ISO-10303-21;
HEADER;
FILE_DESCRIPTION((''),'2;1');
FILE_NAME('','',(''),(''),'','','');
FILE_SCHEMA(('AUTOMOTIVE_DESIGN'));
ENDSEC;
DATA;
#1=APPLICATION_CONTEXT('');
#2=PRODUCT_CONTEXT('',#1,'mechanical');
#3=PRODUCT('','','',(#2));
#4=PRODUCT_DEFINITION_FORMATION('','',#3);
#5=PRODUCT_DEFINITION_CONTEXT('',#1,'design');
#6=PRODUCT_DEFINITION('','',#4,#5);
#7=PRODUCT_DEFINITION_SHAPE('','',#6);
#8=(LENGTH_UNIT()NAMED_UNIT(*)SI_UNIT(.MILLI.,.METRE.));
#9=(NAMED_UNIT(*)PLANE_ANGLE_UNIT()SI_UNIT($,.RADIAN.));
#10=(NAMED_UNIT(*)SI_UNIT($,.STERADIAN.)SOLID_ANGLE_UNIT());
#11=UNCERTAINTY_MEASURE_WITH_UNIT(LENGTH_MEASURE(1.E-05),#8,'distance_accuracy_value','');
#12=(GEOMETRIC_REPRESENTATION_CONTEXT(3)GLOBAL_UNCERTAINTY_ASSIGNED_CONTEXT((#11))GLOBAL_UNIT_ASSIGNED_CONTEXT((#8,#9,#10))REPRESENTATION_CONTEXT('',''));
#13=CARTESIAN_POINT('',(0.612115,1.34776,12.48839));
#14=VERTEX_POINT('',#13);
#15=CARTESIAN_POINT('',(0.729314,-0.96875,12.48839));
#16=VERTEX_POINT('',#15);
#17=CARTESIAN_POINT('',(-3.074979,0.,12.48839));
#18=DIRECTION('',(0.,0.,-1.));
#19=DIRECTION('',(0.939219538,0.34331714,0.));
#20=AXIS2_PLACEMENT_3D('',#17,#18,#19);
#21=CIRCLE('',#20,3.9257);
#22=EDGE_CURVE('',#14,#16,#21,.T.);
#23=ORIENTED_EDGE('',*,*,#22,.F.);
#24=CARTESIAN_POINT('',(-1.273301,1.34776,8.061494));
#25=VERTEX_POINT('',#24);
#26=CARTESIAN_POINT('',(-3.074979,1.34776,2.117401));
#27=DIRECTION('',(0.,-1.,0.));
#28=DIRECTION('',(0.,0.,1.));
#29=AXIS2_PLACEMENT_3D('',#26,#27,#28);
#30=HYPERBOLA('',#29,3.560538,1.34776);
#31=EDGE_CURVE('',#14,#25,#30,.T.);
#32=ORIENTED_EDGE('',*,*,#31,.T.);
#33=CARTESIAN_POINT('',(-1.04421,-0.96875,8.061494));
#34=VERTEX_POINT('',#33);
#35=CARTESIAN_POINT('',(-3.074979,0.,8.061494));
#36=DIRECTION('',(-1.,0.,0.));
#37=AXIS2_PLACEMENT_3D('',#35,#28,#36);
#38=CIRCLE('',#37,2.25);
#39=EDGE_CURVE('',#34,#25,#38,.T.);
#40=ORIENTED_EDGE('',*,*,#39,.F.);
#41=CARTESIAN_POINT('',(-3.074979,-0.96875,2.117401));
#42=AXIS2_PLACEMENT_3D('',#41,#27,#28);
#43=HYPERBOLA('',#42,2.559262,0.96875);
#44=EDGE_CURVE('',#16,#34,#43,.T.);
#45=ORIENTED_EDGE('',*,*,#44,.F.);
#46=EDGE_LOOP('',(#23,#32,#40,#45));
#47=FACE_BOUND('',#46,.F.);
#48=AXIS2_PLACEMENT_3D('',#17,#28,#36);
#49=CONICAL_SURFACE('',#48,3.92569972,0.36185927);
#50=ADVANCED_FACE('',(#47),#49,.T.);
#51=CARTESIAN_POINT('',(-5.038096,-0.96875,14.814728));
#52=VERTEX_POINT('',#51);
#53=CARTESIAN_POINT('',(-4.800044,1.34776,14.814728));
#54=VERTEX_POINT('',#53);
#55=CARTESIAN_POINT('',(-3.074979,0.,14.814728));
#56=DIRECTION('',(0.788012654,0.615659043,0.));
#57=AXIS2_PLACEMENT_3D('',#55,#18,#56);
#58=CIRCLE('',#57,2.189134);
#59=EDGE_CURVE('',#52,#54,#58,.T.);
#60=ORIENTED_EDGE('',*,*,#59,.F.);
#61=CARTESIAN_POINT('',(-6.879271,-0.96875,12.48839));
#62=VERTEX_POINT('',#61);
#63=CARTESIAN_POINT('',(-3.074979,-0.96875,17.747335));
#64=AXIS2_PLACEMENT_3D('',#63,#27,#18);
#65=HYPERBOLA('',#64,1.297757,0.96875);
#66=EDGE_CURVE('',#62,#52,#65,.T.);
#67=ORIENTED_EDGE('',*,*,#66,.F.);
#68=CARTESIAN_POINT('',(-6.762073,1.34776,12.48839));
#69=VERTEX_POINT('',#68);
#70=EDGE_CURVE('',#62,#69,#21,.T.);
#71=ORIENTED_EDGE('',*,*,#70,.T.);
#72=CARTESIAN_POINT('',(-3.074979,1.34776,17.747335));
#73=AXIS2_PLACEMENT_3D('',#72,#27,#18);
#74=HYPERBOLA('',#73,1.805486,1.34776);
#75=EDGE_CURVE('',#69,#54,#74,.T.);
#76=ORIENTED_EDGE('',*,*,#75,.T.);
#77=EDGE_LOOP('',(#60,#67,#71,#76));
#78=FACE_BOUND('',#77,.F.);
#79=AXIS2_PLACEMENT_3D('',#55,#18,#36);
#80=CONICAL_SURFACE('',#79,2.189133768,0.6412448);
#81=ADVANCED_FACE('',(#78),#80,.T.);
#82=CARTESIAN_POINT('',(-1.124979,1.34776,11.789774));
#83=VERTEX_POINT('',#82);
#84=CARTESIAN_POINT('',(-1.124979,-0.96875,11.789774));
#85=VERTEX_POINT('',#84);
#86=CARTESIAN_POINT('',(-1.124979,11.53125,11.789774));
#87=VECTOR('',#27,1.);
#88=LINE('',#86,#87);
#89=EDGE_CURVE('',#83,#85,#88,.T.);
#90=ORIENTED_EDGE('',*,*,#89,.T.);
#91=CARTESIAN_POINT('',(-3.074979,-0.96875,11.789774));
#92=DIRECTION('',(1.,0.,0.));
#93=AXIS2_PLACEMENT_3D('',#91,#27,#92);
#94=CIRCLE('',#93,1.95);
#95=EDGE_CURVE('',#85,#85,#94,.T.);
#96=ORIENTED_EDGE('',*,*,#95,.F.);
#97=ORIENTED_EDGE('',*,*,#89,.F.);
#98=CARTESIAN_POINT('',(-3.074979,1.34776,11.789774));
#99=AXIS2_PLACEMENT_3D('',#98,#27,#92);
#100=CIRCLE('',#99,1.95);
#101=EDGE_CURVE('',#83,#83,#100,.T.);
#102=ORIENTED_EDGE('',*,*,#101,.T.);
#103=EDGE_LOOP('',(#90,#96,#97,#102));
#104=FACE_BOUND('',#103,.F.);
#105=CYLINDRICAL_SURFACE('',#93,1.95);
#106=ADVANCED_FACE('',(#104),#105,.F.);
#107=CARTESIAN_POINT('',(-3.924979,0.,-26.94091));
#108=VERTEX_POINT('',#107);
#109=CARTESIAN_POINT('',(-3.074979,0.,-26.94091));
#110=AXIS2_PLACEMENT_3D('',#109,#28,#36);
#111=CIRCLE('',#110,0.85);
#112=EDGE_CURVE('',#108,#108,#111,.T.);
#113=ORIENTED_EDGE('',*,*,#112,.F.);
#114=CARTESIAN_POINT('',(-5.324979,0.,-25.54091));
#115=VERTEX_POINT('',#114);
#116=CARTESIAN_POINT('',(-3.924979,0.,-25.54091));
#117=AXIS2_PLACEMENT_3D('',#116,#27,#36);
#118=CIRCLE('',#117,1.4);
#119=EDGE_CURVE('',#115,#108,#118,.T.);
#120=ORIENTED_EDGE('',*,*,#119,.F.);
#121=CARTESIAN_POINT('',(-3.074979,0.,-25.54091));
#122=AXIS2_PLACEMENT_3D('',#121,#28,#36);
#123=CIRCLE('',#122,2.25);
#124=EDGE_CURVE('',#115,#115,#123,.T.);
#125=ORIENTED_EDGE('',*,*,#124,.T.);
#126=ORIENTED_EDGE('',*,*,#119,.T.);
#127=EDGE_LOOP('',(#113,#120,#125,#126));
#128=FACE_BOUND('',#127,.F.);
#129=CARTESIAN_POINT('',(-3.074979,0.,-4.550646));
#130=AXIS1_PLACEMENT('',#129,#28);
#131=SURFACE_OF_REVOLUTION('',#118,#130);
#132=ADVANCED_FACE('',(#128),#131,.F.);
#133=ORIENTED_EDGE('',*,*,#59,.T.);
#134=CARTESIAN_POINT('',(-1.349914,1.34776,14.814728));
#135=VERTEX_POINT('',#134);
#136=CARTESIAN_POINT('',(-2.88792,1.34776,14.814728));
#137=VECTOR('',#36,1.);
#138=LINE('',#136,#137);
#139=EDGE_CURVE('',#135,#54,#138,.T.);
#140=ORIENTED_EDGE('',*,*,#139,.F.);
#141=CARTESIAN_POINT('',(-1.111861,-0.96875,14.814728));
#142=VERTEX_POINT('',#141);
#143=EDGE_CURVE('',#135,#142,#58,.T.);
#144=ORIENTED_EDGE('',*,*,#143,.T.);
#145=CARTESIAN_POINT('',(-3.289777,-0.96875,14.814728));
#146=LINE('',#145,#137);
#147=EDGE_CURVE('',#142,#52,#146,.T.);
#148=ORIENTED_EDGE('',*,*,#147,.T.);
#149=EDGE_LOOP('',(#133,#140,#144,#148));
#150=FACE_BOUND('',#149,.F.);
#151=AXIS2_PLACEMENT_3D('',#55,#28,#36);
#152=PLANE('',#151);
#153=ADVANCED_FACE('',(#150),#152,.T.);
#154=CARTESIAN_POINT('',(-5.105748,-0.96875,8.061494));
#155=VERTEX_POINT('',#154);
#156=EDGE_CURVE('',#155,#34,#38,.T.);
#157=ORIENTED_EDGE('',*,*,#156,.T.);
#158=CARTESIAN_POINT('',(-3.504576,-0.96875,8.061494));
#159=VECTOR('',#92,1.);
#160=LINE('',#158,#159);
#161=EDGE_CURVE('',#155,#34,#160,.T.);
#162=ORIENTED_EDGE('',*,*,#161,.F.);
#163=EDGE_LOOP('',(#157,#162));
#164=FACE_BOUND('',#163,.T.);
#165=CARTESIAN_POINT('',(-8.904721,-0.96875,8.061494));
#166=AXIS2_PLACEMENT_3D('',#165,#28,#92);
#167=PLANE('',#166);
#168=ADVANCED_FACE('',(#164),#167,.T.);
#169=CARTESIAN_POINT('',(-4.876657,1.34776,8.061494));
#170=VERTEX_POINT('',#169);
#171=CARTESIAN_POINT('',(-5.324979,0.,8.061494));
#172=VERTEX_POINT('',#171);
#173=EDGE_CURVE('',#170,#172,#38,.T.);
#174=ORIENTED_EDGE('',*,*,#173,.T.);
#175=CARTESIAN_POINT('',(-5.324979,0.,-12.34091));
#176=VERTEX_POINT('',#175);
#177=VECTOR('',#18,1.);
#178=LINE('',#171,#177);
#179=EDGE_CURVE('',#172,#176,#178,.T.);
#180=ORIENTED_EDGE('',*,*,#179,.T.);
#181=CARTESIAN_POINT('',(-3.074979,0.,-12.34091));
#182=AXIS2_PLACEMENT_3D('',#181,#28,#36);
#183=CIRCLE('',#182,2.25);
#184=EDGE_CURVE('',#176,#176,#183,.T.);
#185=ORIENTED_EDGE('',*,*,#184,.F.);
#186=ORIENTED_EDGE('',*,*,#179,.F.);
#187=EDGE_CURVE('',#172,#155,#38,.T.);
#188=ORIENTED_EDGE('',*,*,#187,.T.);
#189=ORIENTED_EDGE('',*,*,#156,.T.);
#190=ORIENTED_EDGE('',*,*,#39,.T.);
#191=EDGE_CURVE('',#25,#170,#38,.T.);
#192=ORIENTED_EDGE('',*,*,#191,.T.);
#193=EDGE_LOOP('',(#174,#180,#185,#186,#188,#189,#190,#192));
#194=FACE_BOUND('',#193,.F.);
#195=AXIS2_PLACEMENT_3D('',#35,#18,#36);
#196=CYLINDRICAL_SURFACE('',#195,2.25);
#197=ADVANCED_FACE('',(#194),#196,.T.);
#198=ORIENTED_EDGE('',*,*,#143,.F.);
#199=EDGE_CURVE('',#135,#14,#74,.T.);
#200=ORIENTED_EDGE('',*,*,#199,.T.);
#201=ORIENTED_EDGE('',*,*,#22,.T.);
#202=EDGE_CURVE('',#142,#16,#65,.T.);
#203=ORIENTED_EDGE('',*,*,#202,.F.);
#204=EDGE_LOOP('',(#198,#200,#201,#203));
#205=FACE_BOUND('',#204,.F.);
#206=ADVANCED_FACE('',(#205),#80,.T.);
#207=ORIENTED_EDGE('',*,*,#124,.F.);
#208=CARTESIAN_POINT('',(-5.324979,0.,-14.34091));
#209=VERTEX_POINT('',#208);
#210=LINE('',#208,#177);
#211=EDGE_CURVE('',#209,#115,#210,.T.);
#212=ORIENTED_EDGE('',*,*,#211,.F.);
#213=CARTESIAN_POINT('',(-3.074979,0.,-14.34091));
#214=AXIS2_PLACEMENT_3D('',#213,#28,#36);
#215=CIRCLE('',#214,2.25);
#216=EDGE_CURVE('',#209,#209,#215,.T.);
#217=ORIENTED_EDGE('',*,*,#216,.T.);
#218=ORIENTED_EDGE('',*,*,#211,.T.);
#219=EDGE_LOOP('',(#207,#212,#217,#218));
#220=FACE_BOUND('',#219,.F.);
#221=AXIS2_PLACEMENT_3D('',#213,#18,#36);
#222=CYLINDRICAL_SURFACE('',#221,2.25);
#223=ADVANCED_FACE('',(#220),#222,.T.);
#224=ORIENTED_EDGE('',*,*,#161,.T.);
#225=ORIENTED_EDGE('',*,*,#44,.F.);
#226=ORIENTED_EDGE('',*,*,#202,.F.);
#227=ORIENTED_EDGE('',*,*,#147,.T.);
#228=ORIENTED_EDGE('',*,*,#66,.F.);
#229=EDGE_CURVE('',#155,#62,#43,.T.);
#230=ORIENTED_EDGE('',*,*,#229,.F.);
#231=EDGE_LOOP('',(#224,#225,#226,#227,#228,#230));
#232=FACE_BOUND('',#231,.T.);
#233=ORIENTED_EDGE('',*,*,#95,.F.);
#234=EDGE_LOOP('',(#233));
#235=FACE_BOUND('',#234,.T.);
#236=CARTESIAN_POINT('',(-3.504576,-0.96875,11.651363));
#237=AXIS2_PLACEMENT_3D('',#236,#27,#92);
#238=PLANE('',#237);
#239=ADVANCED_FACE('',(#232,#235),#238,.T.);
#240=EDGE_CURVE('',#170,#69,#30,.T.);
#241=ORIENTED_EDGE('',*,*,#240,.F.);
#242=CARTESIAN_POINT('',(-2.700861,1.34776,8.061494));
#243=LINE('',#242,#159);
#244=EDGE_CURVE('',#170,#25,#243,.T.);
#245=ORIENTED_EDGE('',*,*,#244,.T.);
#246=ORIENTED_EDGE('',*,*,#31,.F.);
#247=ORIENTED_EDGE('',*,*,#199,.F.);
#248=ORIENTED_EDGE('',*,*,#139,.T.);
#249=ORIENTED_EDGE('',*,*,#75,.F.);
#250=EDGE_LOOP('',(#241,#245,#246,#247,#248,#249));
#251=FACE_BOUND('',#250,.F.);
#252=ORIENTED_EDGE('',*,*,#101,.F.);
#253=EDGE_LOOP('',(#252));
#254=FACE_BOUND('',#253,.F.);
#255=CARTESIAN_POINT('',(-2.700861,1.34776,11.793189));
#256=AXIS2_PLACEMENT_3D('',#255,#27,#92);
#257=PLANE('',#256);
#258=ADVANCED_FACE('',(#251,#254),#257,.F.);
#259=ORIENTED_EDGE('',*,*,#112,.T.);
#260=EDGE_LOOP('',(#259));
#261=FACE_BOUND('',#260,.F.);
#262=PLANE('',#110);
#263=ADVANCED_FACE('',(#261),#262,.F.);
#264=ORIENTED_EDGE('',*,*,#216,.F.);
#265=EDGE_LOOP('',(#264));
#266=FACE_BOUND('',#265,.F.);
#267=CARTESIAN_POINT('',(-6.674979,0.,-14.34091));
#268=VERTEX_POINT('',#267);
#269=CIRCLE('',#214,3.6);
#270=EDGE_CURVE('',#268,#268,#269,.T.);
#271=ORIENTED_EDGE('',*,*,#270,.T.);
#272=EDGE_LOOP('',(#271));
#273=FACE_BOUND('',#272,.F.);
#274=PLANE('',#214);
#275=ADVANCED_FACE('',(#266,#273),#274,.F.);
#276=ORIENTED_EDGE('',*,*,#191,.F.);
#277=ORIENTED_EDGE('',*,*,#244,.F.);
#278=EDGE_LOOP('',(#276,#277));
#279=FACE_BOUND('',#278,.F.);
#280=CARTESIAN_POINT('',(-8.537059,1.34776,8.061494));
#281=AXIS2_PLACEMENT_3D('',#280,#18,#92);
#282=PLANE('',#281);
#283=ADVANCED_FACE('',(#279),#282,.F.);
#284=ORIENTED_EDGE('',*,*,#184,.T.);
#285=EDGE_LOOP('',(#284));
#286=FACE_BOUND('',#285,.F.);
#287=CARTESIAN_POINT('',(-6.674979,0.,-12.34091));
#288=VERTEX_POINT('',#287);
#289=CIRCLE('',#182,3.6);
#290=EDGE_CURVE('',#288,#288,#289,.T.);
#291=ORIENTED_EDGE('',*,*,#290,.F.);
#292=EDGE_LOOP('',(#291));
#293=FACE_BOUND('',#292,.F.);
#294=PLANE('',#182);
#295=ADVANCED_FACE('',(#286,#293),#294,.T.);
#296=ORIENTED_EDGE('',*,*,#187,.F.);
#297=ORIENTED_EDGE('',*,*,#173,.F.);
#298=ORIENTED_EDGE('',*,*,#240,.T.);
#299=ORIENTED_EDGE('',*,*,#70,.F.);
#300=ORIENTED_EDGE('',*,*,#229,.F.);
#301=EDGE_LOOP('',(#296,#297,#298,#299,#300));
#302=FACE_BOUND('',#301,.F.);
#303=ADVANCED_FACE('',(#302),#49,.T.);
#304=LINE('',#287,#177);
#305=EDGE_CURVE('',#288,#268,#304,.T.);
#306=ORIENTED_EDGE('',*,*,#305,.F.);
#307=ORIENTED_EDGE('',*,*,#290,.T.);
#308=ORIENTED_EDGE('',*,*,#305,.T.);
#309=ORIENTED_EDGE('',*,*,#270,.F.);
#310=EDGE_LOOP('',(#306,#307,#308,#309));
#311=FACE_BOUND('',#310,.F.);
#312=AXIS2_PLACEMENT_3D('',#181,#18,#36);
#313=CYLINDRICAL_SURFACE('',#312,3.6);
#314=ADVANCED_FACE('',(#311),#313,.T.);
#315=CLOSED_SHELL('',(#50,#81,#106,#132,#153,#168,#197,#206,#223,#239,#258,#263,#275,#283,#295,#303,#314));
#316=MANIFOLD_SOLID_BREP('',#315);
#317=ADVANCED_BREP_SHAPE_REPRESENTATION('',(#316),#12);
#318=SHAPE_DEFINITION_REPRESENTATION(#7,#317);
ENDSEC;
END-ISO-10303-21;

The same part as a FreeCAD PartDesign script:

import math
import FreeCAD as App
import Part
import Sketcher
from FreeCAD import Vector
Q = App.Units.Quantity


def add_polygon(sketch, points):
    """Adds a closed chain of lines whose ends are joined by coincident constraints."""
    first, n = sketch.GeometryCount, len(points)
    for a, b in zip(points, points[1:] + points[:1]):
        sketch.addGeometry(Part.LineSegment(App.Vector(*a, 0), App.Vector(*b, 0)), False)
    for i in range(n):
        sketch.addConstraint(Sketcher.Constraint("Coincident", first + i, 2, first + (i + 1) % n, 1))

doc = App.newDocument("Part")
body = doc.addObject("PartDesign::Body", "Body")

# Sketch on XZ plane
sketch1 = doc.addObject("Sketcher::SketchObject", "Sketch")
body.addObject(sketch1)
sketch1.AttachmentSupport = (doc.XZ_Plane, [""])
sketch1.MapMode = "FlatFace"
sketch1.addGeometry([
    Part.LineSegment(Vector(-7, 12.5, 0), Vector(-5.3, 8.1, 0)),  # 0
    Part.LineSegment(Vector(-5.3, 8.1, 0), Vector(-5.3, -12.3, 0)),  # 1
    Part.LineSegment(Vector(-5.3, -12.3, 0), Vector(-6.7, -12.3, 0)),  # 2
    Part.LineSegment(Vector(-6.7, -12.3, 0), Vector(-6.7, -14.3, 0)),  # 3
    Part.LineSegment(Vector(-6.7, -14.3, 0), Vector(-5.3, -14.3, 0)),  # 4
    Part.LineSegment(Vector(-5.3, -14.3, 0), Vector(-5.3, -25.5, 0)),  # 5
    Part.ArcOfCircle(Part.Circle(Vector(-3.9, -25.5, 0), Vector(0, 0, 1), 1.4), math.radians(180), math.radians(270)),  # 6
    Part.LineSegment(Vector(-3.9, -26.9, 0), Vector(-3.1, -26.9, 0)),  # 7
    Part.LineSegment(Vector(-3.1, -26.9, 0), Vector(-3.1, 10.3, 0)),  # 8
    Part.ArcOfCircle(Part.Circle(Vector(-3.1, 11.8, 0), Vector(0, 0, 1), 1.5), math.radians(90), math.radians(270)),  # 9
    Part.LineSegment(Vector(-3.1, 13.3, 0), Vector(-3.1, 14.8, 0)),  # 10
    Part.LineSegment(Vector(-3.1, 14.8, 0), Vector(-5.3, 14.8, 0)),  # 11
    Part.LineSegment(Vector(-5.3, 14.8, 0), Vector(-7, 12.5, 0)),  # 12
], False)
sketch1.addGeometry(Part.LineSegment(Vector(-3.1, -26.9, 0), Vector(-3.1, 14.8, 0)), True)  # axis
sketch1.addConstraint([
    Sketcher.Constraint("Coincident", 0, 2, 1, 1),
    Sketcher.Constraint("Coincident", 1, 2, 2, 1),
    Sketcher.Constraint("Coincident", 2, 2, 3, 1),
    Sketcher.Constraint("Coincident", 3, 2, 4, 1),
    Sketcher.Constraint("Coincident", 4, 2, 5, 1),
    Sketcher.Constraint("Tangent", 5, 2, 6, 1),
    Sketcher.Constraint("Tangent", 6, 2, 7, 1),
    Sketcher.Constraint("Coincident", 7, 2, 8, 1),
    Sketcher.Constraint("Coincident", 8, 2, 9, 2),
    Sketcher.Constraint("Coincident", 9, 1, 10, 1),
    Sketcher.Constraint("Coincident", 10, 2, 11, 1),
    Sketcher.Constraint("Coincident", 11, 2, 12, 1),
    Sketcher.Constraint("Coincident", 12, 2, 0, 1),
    Sketcher.Constraint("Vertical", 1),
    Sketcher.Constraint("Horizontal", 2),
    Sketcher.Constraint("Vertical", 3),
    Sketcher.Constraint("Horizontal", 4),
    Sketcher.Constraint("Vertical", 5),
    Sketcher.Constraint("Horizontal", 7),
    Sketcher.Constraint("Vertical", 8),
    Sketcher.Constraint("Vertical", 10),
    Sketcher.Constraint("Horizontal", 11),
    Sketcher.Constraint("Vertical", 13),
    Sketcher.Constraint("Coincident", 13, 1, 7, 2),
    Sketcher.Constraint("Coincident", 13, 2, 10, 2),
    Sketcher.Constraint("Vertical", 1, 2, 4, 2),
    Sketcher.Constraint("Vertical", 9, 3, 7, 2),
    Sketcher.Constraint("Radius", 6, Q("1.4 mm")),
    Sketcher.Constraint("DistanceY", 3, 2, 3, 1, Q("2 mm")),
    Sketcher.Constraint("DistanceY", 5, 2, 5, 1, Q("11.2 mm")),
    Sketcher.Constraint("DistanceX", 2, 2, 2, 1, Q("1.35 mm")),
    Sketcher.Constraint("DistanceX", 7, 1, 7, 2, Q("0.85 mm")),
    Sketcher.Constraint("Radius", 9, Q("1.514832 mm")),
    Sketcher.Constraint("DistanceY", 10, 1, 10, 2, Q("1.510122 mm")),
    Sketcher.Constraint("DistanceY", 13, 1, 13, 2, Q("41.755638 mm")),
    Sketcher.Constraint("DistanceX", 12, 2, 9, 3, Q("3.9257 mm")),
    Sketcher.Constraint("Distance", 0, Q("4.733432 mm")),
    Sketcher.Constraint("DistanceX", 11, 2, 11, 1, Q("2.189134 mm")),
    Sketcher.Constraint("DistanceY", 1, 2, 1, 1, Q("20.402404 mm")),
    Sketcher.Constraint("DistanceX", 6, 3, -1, 1, Q("3.924979 mm")),
    Sketcher.Constraint("DistanceY", 6, 3, -1, 1, Q("25.54091 mm")),
])
revolution = doc.addObject("PartDesign::Revolution", "Revolution")
body.addObject(revolution)
revolution.Profile = sketch1
revolution.ReferenceAxis = (sketch1, ["Axis0"])
revolution.Angle = 360

# Sketch on XZ plane
sketch2 = doc.addObject("Sketcher::SketchObject", "Sketch001")
body.addObject(sketch2)
sketch2.AttachmentSupport = (doc.XZ_Plane, [""])
sketch2.MapMode = "FlatFace"
sketch2.AttachmentOffset = App.Placement(Vector(0, 0, -1.34776), App.Rotation())
add_polygon(sketch2, [(-9, 16), (-9, 8), (3, 8), (3, 16)])  # lines 0-3
sketch2.addConstraint([
    Sketcher.Constraint("Vertical", 0),
    Sketcher.Constraint("Horizontal", 1),
    Sketcher.Constraint("Vertical", 2),
    Sketcher.Constraint("Horizontal", 3),
    Sketcher.Constraint("DistanceY", 0, 2, 0, 1, Q("7.463389 mm")),
    Sketcher.Constraint("DistanceX", 1, 1, 1, 2, Q("11.672396 mm")),
    Sketcher.Constraint("DistanceX", 0, 2, -1, 1, Q("8.537059 mm")),
    Sketcher.Constraint("DistanceY", -1, 1, 0, 2, Q("8.061494 mm")),
])
pocket1 = doc.addObject("PartDesign::Pocket", "Pocket")
body.addObject(pocket1)
pocket1.Profile = sketch2
pocket1.Length = 23.65224

# Sketch on XZ plane
sketch3 = doc.addObject("Sketcher::SketchObject", "Sketch002")
body.addObject(sketch3)
sketch3.AttachmentSupport = (doc.XZ_Plane, [""])
sketch3.MapMode = "FlatFace"
sketch3.AttachmentOffset = App.Placement(Vector(0, 0, 0.96875), App.Rotation())
add_polygon(sketch3, [(-9, 15), (-9, 8), (2, 8), (2, 15)])  # lines 0-3
sketch3.addConstraint([
    Sketcher.Constraint("Vertical", 0),
    Sketcher.Constraint("Horizontal", 1),
    Sketcher.Constraint("Vertical", 2),
    Sketcher.Constraint("Horizontal", 3),
    Sketcher.Constraint("DistanceX", 1, 1, 1, 2, Q("10.80029 mm")),
    Sketcher.Constraint("DistanceY", 0, 2, 0, 1, Q("7.179738 mm")),
    Sketcher.Constraint("DistanceX", 0, 2, -1, 1, Q("8.904721 mm")),
    Sketcher.Constraint("DistanceY", -1, 1, 0, 2, Q("8.061494 mm")),
])
pocket2 = doc.addObject("PartDesign::Pocket", "Pocket001")
body.addObject(pocket2)
pocket2.Profile = sketch3
pocket2.Length = 7.09642
pocket2.Reversed = True

# Sketch on XZ plane
sketch4 = doc.addObject("Sketcher::SketchObject", "Sketch003")
body.addObject(sketch4)
sketch4.AttachmentSupport = (doc.XZ_Plane, [""])
sketch4.MapMode = "FlatFace"
sketch4.AttachmentOffset = App.Placement(Vector(0, 0, 0.96875), App.Rotation())
sketch4.addGeometry(Part.Circle(Vector(-3.1, 11.8, 0), Vector(0, 0, 1), 1.9), False)
sketch4.addConstraint([
    Sketcher.Constraint("Diameter", 0, Q("3.9 mm")),
    Sketcher.Constraint("DistanceX", 0, 3, -1, 1, Q("3.074979 mm")),
    Sketcher.Constraint("DistanceY", -1, 1, 0, 3, Q("11.789774 mm")),
])
pocket3 = doc.addObject("PartDesign::Pocket", "Pocket002")
body.addObject(pocket3)
pocket3.Profile = sketch4
pocket3.Length = 25
pocket3.Midplane = True

doc.recompute()
